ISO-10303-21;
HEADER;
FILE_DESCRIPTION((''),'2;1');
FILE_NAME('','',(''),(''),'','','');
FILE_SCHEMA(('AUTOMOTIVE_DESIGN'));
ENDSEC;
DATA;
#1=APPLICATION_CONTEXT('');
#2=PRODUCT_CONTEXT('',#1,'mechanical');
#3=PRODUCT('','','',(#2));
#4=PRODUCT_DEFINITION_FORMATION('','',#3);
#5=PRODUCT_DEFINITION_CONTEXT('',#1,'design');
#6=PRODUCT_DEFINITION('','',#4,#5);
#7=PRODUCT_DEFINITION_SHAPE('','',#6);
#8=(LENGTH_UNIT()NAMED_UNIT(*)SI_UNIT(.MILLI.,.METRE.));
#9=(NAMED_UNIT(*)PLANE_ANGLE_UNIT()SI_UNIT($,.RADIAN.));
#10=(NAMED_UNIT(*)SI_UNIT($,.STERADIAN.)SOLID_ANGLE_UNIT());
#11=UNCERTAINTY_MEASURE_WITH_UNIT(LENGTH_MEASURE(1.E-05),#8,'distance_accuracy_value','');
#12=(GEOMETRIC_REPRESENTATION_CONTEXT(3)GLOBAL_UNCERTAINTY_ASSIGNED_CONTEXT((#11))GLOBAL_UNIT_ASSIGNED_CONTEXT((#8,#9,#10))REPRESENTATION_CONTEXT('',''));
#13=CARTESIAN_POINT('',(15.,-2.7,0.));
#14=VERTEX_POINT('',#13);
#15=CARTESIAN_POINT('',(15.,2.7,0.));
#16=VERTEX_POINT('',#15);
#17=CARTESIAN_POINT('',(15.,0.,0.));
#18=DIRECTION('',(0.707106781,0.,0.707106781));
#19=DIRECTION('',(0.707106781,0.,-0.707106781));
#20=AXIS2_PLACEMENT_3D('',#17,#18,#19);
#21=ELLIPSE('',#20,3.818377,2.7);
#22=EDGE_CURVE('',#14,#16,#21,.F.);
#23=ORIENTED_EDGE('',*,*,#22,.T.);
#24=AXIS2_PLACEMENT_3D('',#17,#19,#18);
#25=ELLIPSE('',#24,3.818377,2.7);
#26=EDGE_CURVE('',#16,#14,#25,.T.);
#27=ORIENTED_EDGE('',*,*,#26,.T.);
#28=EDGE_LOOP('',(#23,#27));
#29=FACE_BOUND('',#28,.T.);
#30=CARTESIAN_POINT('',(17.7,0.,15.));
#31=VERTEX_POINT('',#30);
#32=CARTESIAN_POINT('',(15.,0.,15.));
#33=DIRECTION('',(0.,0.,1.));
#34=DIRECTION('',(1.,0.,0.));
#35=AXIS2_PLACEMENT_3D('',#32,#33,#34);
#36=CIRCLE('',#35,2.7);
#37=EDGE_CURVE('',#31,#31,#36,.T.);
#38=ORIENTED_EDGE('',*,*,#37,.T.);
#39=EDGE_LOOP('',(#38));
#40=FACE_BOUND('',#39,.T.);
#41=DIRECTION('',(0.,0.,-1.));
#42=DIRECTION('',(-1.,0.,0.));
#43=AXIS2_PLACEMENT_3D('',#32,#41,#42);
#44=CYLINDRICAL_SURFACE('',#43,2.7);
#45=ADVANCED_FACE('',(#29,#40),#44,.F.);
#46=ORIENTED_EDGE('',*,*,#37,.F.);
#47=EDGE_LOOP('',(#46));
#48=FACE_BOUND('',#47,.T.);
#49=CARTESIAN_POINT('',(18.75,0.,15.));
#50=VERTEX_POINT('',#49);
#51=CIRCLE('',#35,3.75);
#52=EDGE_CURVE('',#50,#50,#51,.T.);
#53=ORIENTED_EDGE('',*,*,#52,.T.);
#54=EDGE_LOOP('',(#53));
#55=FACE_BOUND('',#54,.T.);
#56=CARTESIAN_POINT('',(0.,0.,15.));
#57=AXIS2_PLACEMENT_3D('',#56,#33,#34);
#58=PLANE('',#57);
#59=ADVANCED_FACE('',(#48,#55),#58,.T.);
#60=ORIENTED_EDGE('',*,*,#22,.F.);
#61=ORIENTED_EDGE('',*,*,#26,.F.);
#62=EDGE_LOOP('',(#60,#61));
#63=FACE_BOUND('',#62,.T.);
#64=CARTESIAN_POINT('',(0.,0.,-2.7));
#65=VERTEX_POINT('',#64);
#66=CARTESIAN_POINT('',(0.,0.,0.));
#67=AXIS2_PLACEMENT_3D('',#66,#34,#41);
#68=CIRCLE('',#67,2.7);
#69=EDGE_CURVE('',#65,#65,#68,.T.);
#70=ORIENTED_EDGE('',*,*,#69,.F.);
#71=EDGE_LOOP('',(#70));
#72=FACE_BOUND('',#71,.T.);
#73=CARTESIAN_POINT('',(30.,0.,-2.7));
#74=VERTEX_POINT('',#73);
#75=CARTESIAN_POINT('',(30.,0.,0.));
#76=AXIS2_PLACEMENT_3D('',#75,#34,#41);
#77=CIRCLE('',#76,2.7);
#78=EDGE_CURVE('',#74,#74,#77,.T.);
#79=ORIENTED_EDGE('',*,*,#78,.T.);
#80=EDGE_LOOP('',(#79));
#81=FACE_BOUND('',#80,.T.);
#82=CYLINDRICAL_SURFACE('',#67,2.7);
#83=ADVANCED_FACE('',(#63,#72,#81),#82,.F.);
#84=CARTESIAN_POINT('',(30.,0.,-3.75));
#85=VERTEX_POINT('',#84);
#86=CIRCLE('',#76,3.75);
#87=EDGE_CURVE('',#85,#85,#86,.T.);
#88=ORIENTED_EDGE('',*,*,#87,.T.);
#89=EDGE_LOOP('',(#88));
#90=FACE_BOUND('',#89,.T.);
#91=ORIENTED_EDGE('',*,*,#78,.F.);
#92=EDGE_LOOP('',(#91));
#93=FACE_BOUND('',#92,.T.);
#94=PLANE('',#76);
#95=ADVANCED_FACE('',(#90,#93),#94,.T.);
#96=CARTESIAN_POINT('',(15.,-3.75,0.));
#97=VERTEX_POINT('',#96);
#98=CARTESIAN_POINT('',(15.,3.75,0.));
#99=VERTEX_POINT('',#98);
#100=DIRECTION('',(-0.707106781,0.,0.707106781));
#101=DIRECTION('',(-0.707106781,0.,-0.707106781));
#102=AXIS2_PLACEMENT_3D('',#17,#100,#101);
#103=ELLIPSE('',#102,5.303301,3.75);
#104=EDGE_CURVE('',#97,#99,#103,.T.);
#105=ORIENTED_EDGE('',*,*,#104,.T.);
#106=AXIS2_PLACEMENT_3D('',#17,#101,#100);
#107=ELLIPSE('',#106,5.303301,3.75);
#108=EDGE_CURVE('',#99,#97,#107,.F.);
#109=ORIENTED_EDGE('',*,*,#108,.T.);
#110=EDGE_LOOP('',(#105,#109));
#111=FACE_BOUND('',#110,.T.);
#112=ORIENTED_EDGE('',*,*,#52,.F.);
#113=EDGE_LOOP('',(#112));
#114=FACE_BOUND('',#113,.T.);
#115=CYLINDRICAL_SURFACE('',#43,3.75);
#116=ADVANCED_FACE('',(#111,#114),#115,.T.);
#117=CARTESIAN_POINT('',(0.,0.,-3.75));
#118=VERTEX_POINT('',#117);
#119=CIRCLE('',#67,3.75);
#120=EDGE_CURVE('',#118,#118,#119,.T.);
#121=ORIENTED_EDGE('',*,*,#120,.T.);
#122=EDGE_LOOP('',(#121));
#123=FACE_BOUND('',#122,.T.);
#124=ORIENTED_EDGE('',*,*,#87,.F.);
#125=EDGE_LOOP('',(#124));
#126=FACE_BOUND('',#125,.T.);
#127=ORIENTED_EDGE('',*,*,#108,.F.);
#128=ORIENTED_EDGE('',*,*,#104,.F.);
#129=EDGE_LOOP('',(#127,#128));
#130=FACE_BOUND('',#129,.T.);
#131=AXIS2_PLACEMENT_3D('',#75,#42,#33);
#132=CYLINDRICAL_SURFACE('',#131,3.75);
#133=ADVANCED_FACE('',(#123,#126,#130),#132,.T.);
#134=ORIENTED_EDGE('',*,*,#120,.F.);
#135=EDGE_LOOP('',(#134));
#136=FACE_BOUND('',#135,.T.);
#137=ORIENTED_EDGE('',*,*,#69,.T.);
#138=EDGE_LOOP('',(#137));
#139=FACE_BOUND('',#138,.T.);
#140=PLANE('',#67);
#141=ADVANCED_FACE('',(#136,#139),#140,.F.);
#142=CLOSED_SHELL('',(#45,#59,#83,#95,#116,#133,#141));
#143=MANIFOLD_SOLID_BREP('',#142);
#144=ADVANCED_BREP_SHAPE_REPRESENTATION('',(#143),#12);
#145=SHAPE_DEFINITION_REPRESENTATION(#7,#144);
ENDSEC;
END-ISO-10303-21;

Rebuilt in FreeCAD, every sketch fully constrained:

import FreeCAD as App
import Part
import Sketcher

doc = App.newDocument("Part")
body = doc.addObject("PartDesign::Body", "Body")

# Sketch on YZ plane
sketch1 = body.newObject("Sketcher::SketchObject", "Sketch")
sketch1.AttachmentSupport = (doc.getObject("YZ_Plane"), [""])
sketch1.MapMode = "FlatFace"
sketch1.addGeometry(Part.Circle(App.Vector(0, 0, 0), App.Vector(0, 0, 1), 3.8), False)
sketch1.addConstraint([
    Sketcher.Constraint("Coincident", 0, 3, -1, 1),
    Sketcher.Constraint("Diameter", 0, 7.5),
])
pad1 = body.newObject("PartDesign::Pad", "Pad")
pad1.Profile = sketch1
pad1.Length = 30

# Sketch on YZ plane
sketch2 = body.newObject("Sketcher::SketchObject", "Sketch001")
sketch2.AttachmentSupport = (doc.getObject("YZ_Plane"), [""])
sketch2.MapMode = "FlatFace"
sketch2.AttachmentOffset = App.Placement(App.Vector(0, 0, 30), App.Rotation())
sketch2.addGeometry(Part.Circle(App.Vector(0, 0, 0), App.Vector(0, 0, 1), 2.7), False)
sketch2.addConstraint([
    Sketcher.Constraint("Coincident", 0, 3, -1, 1),
    Sketcher.Constraint("Diameter", 0, 5.4),
])
pocket1 = body.newObject("PartDesign::Pocket", "Pocket")
pocket1.Profile = sketch2
pocket1.Length = 30

# Sketch on XY plane
sketch3 = body.newObject("Sketcher::SketchObject", "Sketch002")
sketch3.AttachmentSupport = (doc.getObject("XY_Plane"), [""])
sketch3.MapMode = "FlatFace"
sketch3.addGeometry([
    Part.Circle(App.Vector(15, 0, 0), App.Vector(0, 0, 1), 3.8),
    Part.Circle(App.Vector(15, 0, 0), App.Vector(0, 0, 1), 2.7),
], False)
sketch3.addConstraint([
    Sketcher.Constraint("Coincident", 1, 3, 0, 3),
    Sketcher.Constraint("PointOnObject", 0, 3, -1),
    Sketcher.Constraint("Diameter", 0, 7.5),
    Sketcher.Constraint("Diameter", 1, 5.4),
    Sketcher.Constraint("DistanceX", -1, 1, 0, 3, 15.0),
])
pad2 = body.newObject("PartDesign::Pad", "Pad001")
pad2.Profile = sketch3
pad2.Length = 15

# Sketch on YZ plane
sketch4 = body.newObject("Sketcher::SketchObject", "Sketch003")
sketch4.AttachmentSupport = (doc.getObject("YZ_Plane"), [""])
sketch4.MapMode = "FlatFace"
sketch4.AttachmentOffset = App.Placement(App.Vector(0, 0, 25), App.Rotation())
sketch4.addGeometry(Part.Circle(App.Vector(0, 0, 0), App.Vector(0, 0, 1), 2.7), False)
sketch4.addConstraint([
    Sketcher.Constraint("Coincident", 0, 3, -1, 1),
    Sketcher.Constraint("Diameter", 0, 5.4),
])
pocket2 = body.newObject("PartDesign::Pocket", "Pocket001")
pocket2.Profile = sketch4
pocket2.Length = 25

# Sketch on XY plane
sketch5 = body.newObject("Sketcher::SketchObject", "Sketch004")
sketch5.AttachmentSupport = (doc.getObject("XY_Plane"), [""])
sketch5.MapMode = "FlatFace"
sketch5.addGeometry(Part.Circle(App.Vector(15, 0, 0), App.Vector(0, 0, 1), 2.7), False)
sketch5.addConstraint([
    Sketcher.Constraint("PointOnObject", 0, 3, -1),
    Sketcher.Constraint("Diameter", 0, 5.4),
    Sketcher.Constraint("DistanceX", -1, 1, 0, 3, 15.0),
])
pocket3 = body.newObject("PartDesign::Pocket", "Pocket002")
pocket3.Profile = sketch5
pocket3.Length = 25
pocket3.Reversed = True

doc.recompute()
